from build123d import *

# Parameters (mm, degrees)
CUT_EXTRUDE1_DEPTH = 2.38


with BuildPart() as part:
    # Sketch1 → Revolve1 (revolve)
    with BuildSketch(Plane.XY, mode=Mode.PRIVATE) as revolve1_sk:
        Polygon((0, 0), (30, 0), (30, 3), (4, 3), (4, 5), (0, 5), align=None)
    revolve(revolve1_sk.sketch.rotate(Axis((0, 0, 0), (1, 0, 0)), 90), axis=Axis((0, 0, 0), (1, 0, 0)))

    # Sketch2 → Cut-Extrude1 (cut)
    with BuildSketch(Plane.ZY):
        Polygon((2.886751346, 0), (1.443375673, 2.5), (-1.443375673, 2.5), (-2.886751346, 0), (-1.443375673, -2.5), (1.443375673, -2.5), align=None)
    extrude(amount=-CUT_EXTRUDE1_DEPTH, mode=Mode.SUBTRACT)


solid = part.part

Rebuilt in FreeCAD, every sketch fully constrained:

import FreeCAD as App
import Part
import Sketcher
Q = App.Units.Quantity

doc = App.newDocument("Part")
params = doc.addObject("Spreadsheet::Sheet", "Params")
for row, (alias, value) in enumerate([
    ("sketch1_width", "30 mm"),
    ("sketch1_width2", "26 mm"),
    ("sketch1_height", "3 mm"),
    ("sketch1_height2", "2 mm"),
    ("revolution_angle", "360 deg"),
    ("pocket1_length", "2.38 mm"),
], start=1):
    params.set(f"A{row}", alias)
    params.set(f"B{row}", "=" + value)
    params.setAlias(f"B{row}", alias)

body = doc.addObject("PartDesign::Body", "Body")

sketch1 = body.newObject("Sketcher::SketchObject", "Sketch")
sketch1.AttachmentSupport = (doc.getObject("XY_Plane"), [""])
sketch1.MapMode = "FlatFace"
sketch1.addGeometry(Part.LineSegment(App.Vector(0, 0, 0), App.Vector(30, 0, 0)), False)
sketch1.addGeometry(Part.LineSegment(App.Vector(30, 0, 0), App.Vector(30, 3, 0)), False)
sketch1.addGeometry(Part.LineSegment(App.Vector(30, 3, 0), App.Vector(4, 3, 0)), False)
sketch1.addGeometry(Part.LineSegment(App.Vector(4, 3, 0), App.Vector(4, 5, 0)), False)
sketch1.addGeometry(Part.LineSegment(App.Vector(4, 5, 0), App.Vector(0, 5, 0)), False)
sketch1.addGeometry(Part.LineSegment(App.Vector(0, 5, 0), App.Vector(0, 0, 0)), False)
sketch1.addConstraint(Sketcher.Constraint("Coincident", 0, 2, 1, 1))
sketch1.addConstraint(Sketcher.Constraint("Coincident", 1, 2, 2, 1))
sketch1.addConstraint(Sketcher.Constraint("Coincident", 2, 2, 3, 1))
sketch1.addConstraint(Sketcher.Constraint("Coincident", 3, 2, 4, 1))
sketch1.addConstraint(Sketcher.Constraint("Coincident", 4, 2, 5, 1))
sketch1.addConstraint(Sketcher.Constraint("Coincident", 5, 2, 0, 1))
sketch1.addConstraint(Sketcher.Constraint("Horizontal", 0))
sketch1.addConstraint(Sketcher.Constraint("Vertical", 1))
sketch1.addConstraint(Sketcher.Constraint("Horizontal", 2))
sketch1.addConstraint(Sketcher.Constraint("Vertical", 3))
sketch1.addConstraint(Sketcher.Constraint("Horizontal", 4))
sketch1.addConstraint(Sketcher.Constraint("Vertical", 5))
sketch1.addConstraint(Sketcher.Constraint("Coincident", 5, 2, -1, 1))
sketch1.addConstraint(Sketcher.Constraint("DistanceX", 0, 1, 0, 2, Q("30 mm")))
sketch1.addConstraint(Sketcher.Constraint("DistanceX", 2, 2, 2, 1, Q("26 mm")))
sketch1.addConstraint(Sketcher.Constraint("DistanceY", 1, 1, 1, 2, Q("3 mm")))
sketch1.addConstraint(Sketcher.Constraint("DistanceY", 3, 1, 3, 2, Q("2 mm")))
sketch1.setExpression("Constraints[13]", "Params.sketch1_width")
sketch1.setExpression("Constraints[14]", "Params.sketch1_width2")
sketch1.setExpression("Constraints[15]", "Params.sketch1_height")
sketch1.setExpression("Constraints[16]", "Params.sketch1_height2")
revolution = body.newObject("PartDesign::Revolution", "Revolution")
revolution.Profile = sketch1
revolution.ReferenceAxis = (sketch1, ["H_Axis"])
revolution.setExpression("Angle", "Params.revolution_angle")

sketch2 = body.newObject("Sketcher::SketchObject", "Sketch001")
sketch2.AttachmentSupport = (doc.getObject("YZ_Plane"), [""])
sketch2.MapMode = "FlatFace"
sketch2.addGeometry(Part.LineSegment(App.Vector(0, 2.9, 0), App.Vector(2.5, 1.4, 0)), False)
sketch2.addGeometry(Part.LineSegment(App.Vector(2.5, 1.4, 0), App.Vector(2.5, -1.4, 0)), False)
sketch2.addGeometry(Part.LineSegment(App.Vector(2.5, -1.4, 0), App.Vector(0, -2.9, 0)), False)
sketch2.addGeometry(Part.LineSegment(App.Vector(0, -2.9, 0), App.Vector(-2.5, -1.4, 0)), False)
sketch2.addGeometry(Part.LineSegment(App.Vector(-2.5, -1.4, 0), App.Vector(-2.5, 1.4, 0)), False)
sketch2.addGeometry(Part.LineSegment(App.Vector(-2.5, 1.4, 0), App.Vector(0, 2.9, 0)), False)
sketch2.addConstraint(Sketcher.Constraint("Coincident", 0, 2, 1, 1))
sketch2.addConstraint(Sketcher.Constraint("Coincident", 1, 2, 2, 1))
sketch2.addConstraint(Sketcher.Constraint("Coincident", 2, 2, 3, 1))
sketch2.addConstraint(Sketcher.Constraint("Coincident", 3, 2, 4, 1))
sketch2.addConstraint(Sketcher.Constraint("Coincident", 4, 2, 5, 1))
sketch2.addConstraint(Sketcher.Constraint("Coincident", 5, 2, 0, 1))
sketch2.addConstraint(Sketcher.Constraint("Vertical", 1))
sketch2.addConstraint(Sketcher.Constraint("Vertical", 4))
sketch2.addConstraint(Sketcher.Constraint("Symmetric", 0, 2, 3, 2, -1, 1))
sketch2.addConstraint(Sketcher.Constraint("Symmetric", 2, 2, 5, 2, -1, 1))
sketch2.addConstraint(Sketcher.Constraint("PointOnObject", 2, 2, -2))
sketch2.addConstraint(Sketcher.Constraint("Parallel", 2, 5))
sketch2.addConstraint(Sketcher.Constraint("Horizontal", 1, 2, 3, 2))
sketch2.addConstraint(Sketcher.Constraint("Angle", 0, Q("-30 deg")))
sketch2.addConstraint(Sketcher.Constraint("DistanceX", 3, 2, 1, 2, Q("5 mm")))
sketch2.addConstraint(Sketcher.Constraint("DistanceY", 1, 2, 1, 1, Q("2.886751 mm")))
pocket1 = body.newObject("PartDesign::Pocket", "Pocket")
pocket1.Profile = sketch2
pocket1.setExpression("Length", "Params.pocket1_length")
pocket1.Reversed = True

doc.recompute()
